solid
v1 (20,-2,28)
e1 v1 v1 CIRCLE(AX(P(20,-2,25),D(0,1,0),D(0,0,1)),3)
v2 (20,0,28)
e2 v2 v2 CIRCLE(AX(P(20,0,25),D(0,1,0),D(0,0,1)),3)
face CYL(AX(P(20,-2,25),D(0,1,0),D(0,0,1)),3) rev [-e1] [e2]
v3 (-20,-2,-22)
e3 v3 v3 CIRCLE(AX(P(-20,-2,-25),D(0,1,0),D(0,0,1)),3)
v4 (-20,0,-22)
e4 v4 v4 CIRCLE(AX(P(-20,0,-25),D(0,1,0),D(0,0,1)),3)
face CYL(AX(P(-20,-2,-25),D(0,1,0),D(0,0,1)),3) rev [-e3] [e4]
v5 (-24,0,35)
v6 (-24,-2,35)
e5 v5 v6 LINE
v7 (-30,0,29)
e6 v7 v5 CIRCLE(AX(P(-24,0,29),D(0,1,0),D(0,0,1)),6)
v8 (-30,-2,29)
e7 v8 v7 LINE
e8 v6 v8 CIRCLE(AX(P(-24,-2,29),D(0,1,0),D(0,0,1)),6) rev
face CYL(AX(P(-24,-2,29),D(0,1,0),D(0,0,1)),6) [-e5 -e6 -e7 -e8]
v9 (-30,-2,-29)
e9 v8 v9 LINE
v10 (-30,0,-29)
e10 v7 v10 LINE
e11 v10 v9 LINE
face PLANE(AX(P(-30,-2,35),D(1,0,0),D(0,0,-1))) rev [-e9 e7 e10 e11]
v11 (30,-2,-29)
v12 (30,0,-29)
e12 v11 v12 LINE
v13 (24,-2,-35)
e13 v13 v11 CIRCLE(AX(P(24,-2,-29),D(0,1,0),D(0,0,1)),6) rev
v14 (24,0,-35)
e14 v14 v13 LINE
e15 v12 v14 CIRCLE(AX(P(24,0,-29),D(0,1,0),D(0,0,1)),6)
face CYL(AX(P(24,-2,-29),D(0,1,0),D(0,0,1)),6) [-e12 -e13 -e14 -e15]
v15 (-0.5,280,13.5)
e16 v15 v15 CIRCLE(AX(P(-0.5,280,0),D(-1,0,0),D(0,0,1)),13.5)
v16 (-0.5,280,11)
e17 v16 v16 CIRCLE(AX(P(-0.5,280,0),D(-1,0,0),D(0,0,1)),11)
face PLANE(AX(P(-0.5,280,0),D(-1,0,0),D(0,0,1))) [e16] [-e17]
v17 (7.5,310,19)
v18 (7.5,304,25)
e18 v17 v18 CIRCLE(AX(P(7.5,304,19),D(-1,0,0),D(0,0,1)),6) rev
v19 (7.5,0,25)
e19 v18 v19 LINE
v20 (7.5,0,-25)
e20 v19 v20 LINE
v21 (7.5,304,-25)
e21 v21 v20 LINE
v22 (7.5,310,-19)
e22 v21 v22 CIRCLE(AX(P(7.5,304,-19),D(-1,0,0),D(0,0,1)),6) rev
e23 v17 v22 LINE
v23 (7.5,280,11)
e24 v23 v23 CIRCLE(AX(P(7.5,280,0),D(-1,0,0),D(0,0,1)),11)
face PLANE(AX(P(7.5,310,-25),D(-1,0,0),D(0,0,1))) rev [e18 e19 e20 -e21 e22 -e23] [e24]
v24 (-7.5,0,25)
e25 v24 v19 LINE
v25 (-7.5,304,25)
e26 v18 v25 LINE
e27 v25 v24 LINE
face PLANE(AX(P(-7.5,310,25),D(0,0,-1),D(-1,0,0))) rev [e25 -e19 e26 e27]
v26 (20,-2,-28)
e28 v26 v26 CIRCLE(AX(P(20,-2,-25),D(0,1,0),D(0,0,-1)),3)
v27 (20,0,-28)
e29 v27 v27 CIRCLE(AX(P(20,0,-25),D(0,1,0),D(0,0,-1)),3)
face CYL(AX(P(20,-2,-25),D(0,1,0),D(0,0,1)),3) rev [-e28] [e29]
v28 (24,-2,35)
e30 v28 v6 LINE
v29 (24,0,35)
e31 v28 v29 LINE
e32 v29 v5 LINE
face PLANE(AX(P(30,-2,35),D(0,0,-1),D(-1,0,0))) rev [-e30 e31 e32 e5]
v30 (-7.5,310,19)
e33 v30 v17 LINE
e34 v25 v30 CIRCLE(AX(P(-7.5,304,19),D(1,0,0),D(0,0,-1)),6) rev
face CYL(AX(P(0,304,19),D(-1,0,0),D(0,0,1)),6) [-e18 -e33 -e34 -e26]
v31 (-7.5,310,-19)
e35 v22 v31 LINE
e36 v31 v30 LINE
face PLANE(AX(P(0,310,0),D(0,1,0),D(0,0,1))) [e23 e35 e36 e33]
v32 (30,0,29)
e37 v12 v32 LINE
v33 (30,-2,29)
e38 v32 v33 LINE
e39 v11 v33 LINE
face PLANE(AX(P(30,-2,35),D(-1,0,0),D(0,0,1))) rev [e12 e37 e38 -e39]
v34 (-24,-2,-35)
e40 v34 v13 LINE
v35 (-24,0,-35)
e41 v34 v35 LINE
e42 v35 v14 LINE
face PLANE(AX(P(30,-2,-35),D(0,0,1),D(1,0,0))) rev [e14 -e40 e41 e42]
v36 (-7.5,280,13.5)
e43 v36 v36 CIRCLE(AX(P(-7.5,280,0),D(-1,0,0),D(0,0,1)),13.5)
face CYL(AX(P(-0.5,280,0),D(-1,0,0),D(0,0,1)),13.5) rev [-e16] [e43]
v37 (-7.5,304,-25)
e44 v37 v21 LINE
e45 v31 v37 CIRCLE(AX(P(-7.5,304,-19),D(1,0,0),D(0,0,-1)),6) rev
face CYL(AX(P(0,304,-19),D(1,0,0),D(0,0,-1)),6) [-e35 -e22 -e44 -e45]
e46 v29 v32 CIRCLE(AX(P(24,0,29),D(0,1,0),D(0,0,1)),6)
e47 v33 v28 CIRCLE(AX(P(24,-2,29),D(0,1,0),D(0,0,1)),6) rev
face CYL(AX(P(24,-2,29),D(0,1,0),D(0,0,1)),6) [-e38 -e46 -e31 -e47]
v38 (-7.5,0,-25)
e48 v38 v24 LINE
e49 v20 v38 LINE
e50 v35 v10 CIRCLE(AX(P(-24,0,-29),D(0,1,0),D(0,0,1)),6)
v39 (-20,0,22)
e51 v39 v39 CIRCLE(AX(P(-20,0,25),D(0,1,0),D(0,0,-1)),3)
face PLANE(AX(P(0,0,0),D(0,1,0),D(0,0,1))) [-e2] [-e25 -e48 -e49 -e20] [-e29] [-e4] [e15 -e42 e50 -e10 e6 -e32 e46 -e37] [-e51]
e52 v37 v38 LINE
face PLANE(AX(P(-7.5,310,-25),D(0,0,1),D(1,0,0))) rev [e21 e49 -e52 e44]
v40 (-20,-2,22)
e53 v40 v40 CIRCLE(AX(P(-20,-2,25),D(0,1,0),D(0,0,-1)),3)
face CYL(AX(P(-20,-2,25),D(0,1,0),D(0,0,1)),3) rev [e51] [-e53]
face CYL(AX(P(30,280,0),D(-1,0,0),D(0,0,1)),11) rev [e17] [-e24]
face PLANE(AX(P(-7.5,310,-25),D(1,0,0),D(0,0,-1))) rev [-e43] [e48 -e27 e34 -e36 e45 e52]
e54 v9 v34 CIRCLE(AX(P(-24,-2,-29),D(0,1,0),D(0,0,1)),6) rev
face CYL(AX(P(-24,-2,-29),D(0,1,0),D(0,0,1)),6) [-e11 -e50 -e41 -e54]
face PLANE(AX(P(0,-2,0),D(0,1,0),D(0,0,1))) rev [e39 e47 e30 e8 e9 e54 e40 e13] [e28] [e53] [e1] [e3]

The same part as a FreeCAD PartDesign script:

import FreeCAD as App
import Part
import Sketcher


def edges_at(feature, points):
    """Names of the edges that pass closest to the given points."""
    edges = feature.Shape.Edges
    near = lambda p: min(range(len(edges)), key=lambda i: edges[i].distToShape(Part.Vertex(*p))[0])
    return sorted({f"Edge{near(p) + 1}" for p in points})


def add_polygon(sketch, points):
    """Adds a closed chain of lines whose ends are joined by coincident constraints."""
    first, n = sketch.GeometryCount, len(points)
    for a, b in zip(points, points[1:] + points[:1]):
        sketch.addGeometry(Part.LineSegment(App.Vector(*a, 0), App.Vector(*b, 0)), False)
    for i in range(n):
        sketch.addConstraint(Sketcher.Constraint("Coincident", first + i, 2, first + (i + 1) % n, 1))

doc = App.newDocument("Part")
body = doc.addObject("PartDesign::Body", "Body")

sketch1 = body.newObject("Sketcher::SketchObject", "Sketch")
sketch1.AttachmentSupport = (doc.getObject("XZ_Plane"), [""])
sketch1.MapMode = "FlatFace"
add_polygon(sketch1, [(-8, -25), (-8, 25), (8, 25), (8, -25)])
sketch1.addConstraint([
    Sketcher.Constraint("Vertical", 0),
    Sketcher.Constraint("Horizontal", 1),
    Sketcher.Constraint("Vertical", 2),
    Sketcher.Constraint("Horizontal", 3),
    Sketcher.Constraint("Symmetric", 0, 2, 2, 2, -1, 1),
    Sketcher.Constraint("DistanceX", 1, 1, 1, 2, 15.0),
    Sketcher.Constraint("DistanceY", 0, 1, 0, 2, 50.0),
])
pad1 = body.newObject("PartDesign::Pad", "Pad")
pad1.Profile = sketch1
pad1.Length = 310
pad1.Reversed = True

sketch2 = body.newObject("Sketcher::SketchObject", "Sketch001")
sketch2.AttachmentSupport = (doc.getObject("XZ_Plane"), [""])
sketch2.MapMode = "FlatFace"
add_polygon(sketch2, [(30, -35), (30, 35), (-30, 35), (-30, -35)])
sketch2.addConstraint([
    Sketcher.Constraint("Vertical", 0),
    Sketcher.Constraint("Horizontal", 1),
    Sketcher.Constraint("Vertical", 2),
    Sketcher.Constraint("Horizontal", 3),
    Sketcher.Constraint("Symmetric", 0, 2, 2, 2, -1, 1),
    Sketcher.Constraint("DistanceX", 1, 2, 1, 1, 60.0),
    Sketcher.Constraint("DistanceY", 0, 1, 0, 2, 70.0),
])
pad2 = body.newObject("PartDesign::Pad", "Pad001")
pad2.Profile = sketch2
pad2.Length = 2

sketch3 = body.newObject("Sketcher::SketchObject", "Sketch002")
sketch3.AttachmentSupport = (doc.getObject("XZ_Plane"), [""])
sketch3.MapMode = "FlatFace"
sketch3.addGeometry([
    Part.Circle(App.Vector(20, 25, 0), App.Vector(0, 0, 1), 3),
    Part.Circle(App.Vector(-20, 25, 0), App.Vector(0, 0, 1), 3),
    Part.Circle(App.Vector(-20, -25, 0), App.Vector(0, 0, 1), 3),
    Part.Circle(App.Vector(20, -25, 0), App.Vector(0, 0, 1), 3),
], False)
sketch3.addConstraint([
    Sketcher.Constraint("Equal", 0, 1),
    Sketcher.Constraint("Equal", 1, 2),
    Sketcher.Constraint("Equal", 2, 3),
    Sketcher.Constraint("Symmetric", 0, 3, 2, 3, -1, 1),
    Sketcher.Constraint("Symmetric", 1, 3, 3, 3, -1, 1),
    Sketcher.Constraint("Symmetric", 0, 3, 1, 3, -2),
    Sketcher.Constraint("Diameter", 0, 6.0),
    Sketcher.Constraint("DistanceX", -1, 1, 0, 3, 20.0),
    Sketcher.Constraint("DistanceY", -1, 1, 0, 3, 25.0),
])
pocket1 = body.newObject("PartDesign::Pocket", "Pocket")
pocket1.Profile = sketch3
pocket1.Length = 2
pocket1.Reversed = True
doc.recompute()

fillet = body.newObject("PartDesign::Fillet", "Fillet")
fillet.Base = (pocket1, edges_at(pocket1, [
    (-30, -1, 35),
    (-30, -1, -35),
    (30, -1, -35),
    (30, -1, 35),
]))
fillet.Radius = 6

sketch4 = body.newObject("Sketcher::SketchObject", "Sketch003")
sketch4.AttachmentSupport = (doc.getObject("YZ_Plane"), [""])
sketch4.MapMode = "FlatFace"
sketch4.AttachmentOffset = App.Placement(App.Vector(0, 0, -7.5), App.Rotation())
sketch4.addGeometry(Part.Circle(App.Vector(280, 0, 0), App.Vector(0, 0, 1), 14), False)
sketch4.addConstraint([
    Sketcher.Constraint("PointOnObject", 0, 3, -1),
    Sketcher.Constraint("Diameter", 0, 27.0),
    Sketcher.Constraint("DistanceX", -1, 1, 0, 3, 280.0),
])
pocket2 = body.newObject("PartDesign::Pocket", "Pocket001")
pocket2.Profile = sketch4
pocket2.Length = 7
pocket2.Reversed = True

sketch5 = body.newObject("Sketcher::SketchObject", "Sketch004")
sketch5.AttachmentSupport = (doc.getObject("YZ_Plane"), [""])
sketch5.MapMode = "FlatFace"
sketch5.AttachmentOffset = App.Placement(App.Vector(0, 0, -0.5), App.Rotation())
sketch5.addGeometry(Part.Circle(App.Vector(280, 0, 0), App.Vector(0, 0, 1), 11), False)
sketch5.addConstraint([
    Sketcher.Constraint("PointOnObject", 0, 3, -1),
    Sketcher.Constraint("Diameter", 0, 22.0),
    Sketcher.Constraint("DistanceX", -1, 1, 0, 3, 280.0),
])
pocket3 = body.newObject("PartDesign::Pocket", "Pocket002")
pocket3.Profile = sketch5
pocket3.Type = "ThroughAll"
pocket3.Reversed = True
doc.recompute()

fillet2 = body.newObject("PartDesign::Fillet", "Fillet001")
fillet2.Base = (pocket3, edges_at(pocket3, [(0, 310, 25), (0, 310, -25)]))
fillet2.Radius = 6

doc.recompute()
